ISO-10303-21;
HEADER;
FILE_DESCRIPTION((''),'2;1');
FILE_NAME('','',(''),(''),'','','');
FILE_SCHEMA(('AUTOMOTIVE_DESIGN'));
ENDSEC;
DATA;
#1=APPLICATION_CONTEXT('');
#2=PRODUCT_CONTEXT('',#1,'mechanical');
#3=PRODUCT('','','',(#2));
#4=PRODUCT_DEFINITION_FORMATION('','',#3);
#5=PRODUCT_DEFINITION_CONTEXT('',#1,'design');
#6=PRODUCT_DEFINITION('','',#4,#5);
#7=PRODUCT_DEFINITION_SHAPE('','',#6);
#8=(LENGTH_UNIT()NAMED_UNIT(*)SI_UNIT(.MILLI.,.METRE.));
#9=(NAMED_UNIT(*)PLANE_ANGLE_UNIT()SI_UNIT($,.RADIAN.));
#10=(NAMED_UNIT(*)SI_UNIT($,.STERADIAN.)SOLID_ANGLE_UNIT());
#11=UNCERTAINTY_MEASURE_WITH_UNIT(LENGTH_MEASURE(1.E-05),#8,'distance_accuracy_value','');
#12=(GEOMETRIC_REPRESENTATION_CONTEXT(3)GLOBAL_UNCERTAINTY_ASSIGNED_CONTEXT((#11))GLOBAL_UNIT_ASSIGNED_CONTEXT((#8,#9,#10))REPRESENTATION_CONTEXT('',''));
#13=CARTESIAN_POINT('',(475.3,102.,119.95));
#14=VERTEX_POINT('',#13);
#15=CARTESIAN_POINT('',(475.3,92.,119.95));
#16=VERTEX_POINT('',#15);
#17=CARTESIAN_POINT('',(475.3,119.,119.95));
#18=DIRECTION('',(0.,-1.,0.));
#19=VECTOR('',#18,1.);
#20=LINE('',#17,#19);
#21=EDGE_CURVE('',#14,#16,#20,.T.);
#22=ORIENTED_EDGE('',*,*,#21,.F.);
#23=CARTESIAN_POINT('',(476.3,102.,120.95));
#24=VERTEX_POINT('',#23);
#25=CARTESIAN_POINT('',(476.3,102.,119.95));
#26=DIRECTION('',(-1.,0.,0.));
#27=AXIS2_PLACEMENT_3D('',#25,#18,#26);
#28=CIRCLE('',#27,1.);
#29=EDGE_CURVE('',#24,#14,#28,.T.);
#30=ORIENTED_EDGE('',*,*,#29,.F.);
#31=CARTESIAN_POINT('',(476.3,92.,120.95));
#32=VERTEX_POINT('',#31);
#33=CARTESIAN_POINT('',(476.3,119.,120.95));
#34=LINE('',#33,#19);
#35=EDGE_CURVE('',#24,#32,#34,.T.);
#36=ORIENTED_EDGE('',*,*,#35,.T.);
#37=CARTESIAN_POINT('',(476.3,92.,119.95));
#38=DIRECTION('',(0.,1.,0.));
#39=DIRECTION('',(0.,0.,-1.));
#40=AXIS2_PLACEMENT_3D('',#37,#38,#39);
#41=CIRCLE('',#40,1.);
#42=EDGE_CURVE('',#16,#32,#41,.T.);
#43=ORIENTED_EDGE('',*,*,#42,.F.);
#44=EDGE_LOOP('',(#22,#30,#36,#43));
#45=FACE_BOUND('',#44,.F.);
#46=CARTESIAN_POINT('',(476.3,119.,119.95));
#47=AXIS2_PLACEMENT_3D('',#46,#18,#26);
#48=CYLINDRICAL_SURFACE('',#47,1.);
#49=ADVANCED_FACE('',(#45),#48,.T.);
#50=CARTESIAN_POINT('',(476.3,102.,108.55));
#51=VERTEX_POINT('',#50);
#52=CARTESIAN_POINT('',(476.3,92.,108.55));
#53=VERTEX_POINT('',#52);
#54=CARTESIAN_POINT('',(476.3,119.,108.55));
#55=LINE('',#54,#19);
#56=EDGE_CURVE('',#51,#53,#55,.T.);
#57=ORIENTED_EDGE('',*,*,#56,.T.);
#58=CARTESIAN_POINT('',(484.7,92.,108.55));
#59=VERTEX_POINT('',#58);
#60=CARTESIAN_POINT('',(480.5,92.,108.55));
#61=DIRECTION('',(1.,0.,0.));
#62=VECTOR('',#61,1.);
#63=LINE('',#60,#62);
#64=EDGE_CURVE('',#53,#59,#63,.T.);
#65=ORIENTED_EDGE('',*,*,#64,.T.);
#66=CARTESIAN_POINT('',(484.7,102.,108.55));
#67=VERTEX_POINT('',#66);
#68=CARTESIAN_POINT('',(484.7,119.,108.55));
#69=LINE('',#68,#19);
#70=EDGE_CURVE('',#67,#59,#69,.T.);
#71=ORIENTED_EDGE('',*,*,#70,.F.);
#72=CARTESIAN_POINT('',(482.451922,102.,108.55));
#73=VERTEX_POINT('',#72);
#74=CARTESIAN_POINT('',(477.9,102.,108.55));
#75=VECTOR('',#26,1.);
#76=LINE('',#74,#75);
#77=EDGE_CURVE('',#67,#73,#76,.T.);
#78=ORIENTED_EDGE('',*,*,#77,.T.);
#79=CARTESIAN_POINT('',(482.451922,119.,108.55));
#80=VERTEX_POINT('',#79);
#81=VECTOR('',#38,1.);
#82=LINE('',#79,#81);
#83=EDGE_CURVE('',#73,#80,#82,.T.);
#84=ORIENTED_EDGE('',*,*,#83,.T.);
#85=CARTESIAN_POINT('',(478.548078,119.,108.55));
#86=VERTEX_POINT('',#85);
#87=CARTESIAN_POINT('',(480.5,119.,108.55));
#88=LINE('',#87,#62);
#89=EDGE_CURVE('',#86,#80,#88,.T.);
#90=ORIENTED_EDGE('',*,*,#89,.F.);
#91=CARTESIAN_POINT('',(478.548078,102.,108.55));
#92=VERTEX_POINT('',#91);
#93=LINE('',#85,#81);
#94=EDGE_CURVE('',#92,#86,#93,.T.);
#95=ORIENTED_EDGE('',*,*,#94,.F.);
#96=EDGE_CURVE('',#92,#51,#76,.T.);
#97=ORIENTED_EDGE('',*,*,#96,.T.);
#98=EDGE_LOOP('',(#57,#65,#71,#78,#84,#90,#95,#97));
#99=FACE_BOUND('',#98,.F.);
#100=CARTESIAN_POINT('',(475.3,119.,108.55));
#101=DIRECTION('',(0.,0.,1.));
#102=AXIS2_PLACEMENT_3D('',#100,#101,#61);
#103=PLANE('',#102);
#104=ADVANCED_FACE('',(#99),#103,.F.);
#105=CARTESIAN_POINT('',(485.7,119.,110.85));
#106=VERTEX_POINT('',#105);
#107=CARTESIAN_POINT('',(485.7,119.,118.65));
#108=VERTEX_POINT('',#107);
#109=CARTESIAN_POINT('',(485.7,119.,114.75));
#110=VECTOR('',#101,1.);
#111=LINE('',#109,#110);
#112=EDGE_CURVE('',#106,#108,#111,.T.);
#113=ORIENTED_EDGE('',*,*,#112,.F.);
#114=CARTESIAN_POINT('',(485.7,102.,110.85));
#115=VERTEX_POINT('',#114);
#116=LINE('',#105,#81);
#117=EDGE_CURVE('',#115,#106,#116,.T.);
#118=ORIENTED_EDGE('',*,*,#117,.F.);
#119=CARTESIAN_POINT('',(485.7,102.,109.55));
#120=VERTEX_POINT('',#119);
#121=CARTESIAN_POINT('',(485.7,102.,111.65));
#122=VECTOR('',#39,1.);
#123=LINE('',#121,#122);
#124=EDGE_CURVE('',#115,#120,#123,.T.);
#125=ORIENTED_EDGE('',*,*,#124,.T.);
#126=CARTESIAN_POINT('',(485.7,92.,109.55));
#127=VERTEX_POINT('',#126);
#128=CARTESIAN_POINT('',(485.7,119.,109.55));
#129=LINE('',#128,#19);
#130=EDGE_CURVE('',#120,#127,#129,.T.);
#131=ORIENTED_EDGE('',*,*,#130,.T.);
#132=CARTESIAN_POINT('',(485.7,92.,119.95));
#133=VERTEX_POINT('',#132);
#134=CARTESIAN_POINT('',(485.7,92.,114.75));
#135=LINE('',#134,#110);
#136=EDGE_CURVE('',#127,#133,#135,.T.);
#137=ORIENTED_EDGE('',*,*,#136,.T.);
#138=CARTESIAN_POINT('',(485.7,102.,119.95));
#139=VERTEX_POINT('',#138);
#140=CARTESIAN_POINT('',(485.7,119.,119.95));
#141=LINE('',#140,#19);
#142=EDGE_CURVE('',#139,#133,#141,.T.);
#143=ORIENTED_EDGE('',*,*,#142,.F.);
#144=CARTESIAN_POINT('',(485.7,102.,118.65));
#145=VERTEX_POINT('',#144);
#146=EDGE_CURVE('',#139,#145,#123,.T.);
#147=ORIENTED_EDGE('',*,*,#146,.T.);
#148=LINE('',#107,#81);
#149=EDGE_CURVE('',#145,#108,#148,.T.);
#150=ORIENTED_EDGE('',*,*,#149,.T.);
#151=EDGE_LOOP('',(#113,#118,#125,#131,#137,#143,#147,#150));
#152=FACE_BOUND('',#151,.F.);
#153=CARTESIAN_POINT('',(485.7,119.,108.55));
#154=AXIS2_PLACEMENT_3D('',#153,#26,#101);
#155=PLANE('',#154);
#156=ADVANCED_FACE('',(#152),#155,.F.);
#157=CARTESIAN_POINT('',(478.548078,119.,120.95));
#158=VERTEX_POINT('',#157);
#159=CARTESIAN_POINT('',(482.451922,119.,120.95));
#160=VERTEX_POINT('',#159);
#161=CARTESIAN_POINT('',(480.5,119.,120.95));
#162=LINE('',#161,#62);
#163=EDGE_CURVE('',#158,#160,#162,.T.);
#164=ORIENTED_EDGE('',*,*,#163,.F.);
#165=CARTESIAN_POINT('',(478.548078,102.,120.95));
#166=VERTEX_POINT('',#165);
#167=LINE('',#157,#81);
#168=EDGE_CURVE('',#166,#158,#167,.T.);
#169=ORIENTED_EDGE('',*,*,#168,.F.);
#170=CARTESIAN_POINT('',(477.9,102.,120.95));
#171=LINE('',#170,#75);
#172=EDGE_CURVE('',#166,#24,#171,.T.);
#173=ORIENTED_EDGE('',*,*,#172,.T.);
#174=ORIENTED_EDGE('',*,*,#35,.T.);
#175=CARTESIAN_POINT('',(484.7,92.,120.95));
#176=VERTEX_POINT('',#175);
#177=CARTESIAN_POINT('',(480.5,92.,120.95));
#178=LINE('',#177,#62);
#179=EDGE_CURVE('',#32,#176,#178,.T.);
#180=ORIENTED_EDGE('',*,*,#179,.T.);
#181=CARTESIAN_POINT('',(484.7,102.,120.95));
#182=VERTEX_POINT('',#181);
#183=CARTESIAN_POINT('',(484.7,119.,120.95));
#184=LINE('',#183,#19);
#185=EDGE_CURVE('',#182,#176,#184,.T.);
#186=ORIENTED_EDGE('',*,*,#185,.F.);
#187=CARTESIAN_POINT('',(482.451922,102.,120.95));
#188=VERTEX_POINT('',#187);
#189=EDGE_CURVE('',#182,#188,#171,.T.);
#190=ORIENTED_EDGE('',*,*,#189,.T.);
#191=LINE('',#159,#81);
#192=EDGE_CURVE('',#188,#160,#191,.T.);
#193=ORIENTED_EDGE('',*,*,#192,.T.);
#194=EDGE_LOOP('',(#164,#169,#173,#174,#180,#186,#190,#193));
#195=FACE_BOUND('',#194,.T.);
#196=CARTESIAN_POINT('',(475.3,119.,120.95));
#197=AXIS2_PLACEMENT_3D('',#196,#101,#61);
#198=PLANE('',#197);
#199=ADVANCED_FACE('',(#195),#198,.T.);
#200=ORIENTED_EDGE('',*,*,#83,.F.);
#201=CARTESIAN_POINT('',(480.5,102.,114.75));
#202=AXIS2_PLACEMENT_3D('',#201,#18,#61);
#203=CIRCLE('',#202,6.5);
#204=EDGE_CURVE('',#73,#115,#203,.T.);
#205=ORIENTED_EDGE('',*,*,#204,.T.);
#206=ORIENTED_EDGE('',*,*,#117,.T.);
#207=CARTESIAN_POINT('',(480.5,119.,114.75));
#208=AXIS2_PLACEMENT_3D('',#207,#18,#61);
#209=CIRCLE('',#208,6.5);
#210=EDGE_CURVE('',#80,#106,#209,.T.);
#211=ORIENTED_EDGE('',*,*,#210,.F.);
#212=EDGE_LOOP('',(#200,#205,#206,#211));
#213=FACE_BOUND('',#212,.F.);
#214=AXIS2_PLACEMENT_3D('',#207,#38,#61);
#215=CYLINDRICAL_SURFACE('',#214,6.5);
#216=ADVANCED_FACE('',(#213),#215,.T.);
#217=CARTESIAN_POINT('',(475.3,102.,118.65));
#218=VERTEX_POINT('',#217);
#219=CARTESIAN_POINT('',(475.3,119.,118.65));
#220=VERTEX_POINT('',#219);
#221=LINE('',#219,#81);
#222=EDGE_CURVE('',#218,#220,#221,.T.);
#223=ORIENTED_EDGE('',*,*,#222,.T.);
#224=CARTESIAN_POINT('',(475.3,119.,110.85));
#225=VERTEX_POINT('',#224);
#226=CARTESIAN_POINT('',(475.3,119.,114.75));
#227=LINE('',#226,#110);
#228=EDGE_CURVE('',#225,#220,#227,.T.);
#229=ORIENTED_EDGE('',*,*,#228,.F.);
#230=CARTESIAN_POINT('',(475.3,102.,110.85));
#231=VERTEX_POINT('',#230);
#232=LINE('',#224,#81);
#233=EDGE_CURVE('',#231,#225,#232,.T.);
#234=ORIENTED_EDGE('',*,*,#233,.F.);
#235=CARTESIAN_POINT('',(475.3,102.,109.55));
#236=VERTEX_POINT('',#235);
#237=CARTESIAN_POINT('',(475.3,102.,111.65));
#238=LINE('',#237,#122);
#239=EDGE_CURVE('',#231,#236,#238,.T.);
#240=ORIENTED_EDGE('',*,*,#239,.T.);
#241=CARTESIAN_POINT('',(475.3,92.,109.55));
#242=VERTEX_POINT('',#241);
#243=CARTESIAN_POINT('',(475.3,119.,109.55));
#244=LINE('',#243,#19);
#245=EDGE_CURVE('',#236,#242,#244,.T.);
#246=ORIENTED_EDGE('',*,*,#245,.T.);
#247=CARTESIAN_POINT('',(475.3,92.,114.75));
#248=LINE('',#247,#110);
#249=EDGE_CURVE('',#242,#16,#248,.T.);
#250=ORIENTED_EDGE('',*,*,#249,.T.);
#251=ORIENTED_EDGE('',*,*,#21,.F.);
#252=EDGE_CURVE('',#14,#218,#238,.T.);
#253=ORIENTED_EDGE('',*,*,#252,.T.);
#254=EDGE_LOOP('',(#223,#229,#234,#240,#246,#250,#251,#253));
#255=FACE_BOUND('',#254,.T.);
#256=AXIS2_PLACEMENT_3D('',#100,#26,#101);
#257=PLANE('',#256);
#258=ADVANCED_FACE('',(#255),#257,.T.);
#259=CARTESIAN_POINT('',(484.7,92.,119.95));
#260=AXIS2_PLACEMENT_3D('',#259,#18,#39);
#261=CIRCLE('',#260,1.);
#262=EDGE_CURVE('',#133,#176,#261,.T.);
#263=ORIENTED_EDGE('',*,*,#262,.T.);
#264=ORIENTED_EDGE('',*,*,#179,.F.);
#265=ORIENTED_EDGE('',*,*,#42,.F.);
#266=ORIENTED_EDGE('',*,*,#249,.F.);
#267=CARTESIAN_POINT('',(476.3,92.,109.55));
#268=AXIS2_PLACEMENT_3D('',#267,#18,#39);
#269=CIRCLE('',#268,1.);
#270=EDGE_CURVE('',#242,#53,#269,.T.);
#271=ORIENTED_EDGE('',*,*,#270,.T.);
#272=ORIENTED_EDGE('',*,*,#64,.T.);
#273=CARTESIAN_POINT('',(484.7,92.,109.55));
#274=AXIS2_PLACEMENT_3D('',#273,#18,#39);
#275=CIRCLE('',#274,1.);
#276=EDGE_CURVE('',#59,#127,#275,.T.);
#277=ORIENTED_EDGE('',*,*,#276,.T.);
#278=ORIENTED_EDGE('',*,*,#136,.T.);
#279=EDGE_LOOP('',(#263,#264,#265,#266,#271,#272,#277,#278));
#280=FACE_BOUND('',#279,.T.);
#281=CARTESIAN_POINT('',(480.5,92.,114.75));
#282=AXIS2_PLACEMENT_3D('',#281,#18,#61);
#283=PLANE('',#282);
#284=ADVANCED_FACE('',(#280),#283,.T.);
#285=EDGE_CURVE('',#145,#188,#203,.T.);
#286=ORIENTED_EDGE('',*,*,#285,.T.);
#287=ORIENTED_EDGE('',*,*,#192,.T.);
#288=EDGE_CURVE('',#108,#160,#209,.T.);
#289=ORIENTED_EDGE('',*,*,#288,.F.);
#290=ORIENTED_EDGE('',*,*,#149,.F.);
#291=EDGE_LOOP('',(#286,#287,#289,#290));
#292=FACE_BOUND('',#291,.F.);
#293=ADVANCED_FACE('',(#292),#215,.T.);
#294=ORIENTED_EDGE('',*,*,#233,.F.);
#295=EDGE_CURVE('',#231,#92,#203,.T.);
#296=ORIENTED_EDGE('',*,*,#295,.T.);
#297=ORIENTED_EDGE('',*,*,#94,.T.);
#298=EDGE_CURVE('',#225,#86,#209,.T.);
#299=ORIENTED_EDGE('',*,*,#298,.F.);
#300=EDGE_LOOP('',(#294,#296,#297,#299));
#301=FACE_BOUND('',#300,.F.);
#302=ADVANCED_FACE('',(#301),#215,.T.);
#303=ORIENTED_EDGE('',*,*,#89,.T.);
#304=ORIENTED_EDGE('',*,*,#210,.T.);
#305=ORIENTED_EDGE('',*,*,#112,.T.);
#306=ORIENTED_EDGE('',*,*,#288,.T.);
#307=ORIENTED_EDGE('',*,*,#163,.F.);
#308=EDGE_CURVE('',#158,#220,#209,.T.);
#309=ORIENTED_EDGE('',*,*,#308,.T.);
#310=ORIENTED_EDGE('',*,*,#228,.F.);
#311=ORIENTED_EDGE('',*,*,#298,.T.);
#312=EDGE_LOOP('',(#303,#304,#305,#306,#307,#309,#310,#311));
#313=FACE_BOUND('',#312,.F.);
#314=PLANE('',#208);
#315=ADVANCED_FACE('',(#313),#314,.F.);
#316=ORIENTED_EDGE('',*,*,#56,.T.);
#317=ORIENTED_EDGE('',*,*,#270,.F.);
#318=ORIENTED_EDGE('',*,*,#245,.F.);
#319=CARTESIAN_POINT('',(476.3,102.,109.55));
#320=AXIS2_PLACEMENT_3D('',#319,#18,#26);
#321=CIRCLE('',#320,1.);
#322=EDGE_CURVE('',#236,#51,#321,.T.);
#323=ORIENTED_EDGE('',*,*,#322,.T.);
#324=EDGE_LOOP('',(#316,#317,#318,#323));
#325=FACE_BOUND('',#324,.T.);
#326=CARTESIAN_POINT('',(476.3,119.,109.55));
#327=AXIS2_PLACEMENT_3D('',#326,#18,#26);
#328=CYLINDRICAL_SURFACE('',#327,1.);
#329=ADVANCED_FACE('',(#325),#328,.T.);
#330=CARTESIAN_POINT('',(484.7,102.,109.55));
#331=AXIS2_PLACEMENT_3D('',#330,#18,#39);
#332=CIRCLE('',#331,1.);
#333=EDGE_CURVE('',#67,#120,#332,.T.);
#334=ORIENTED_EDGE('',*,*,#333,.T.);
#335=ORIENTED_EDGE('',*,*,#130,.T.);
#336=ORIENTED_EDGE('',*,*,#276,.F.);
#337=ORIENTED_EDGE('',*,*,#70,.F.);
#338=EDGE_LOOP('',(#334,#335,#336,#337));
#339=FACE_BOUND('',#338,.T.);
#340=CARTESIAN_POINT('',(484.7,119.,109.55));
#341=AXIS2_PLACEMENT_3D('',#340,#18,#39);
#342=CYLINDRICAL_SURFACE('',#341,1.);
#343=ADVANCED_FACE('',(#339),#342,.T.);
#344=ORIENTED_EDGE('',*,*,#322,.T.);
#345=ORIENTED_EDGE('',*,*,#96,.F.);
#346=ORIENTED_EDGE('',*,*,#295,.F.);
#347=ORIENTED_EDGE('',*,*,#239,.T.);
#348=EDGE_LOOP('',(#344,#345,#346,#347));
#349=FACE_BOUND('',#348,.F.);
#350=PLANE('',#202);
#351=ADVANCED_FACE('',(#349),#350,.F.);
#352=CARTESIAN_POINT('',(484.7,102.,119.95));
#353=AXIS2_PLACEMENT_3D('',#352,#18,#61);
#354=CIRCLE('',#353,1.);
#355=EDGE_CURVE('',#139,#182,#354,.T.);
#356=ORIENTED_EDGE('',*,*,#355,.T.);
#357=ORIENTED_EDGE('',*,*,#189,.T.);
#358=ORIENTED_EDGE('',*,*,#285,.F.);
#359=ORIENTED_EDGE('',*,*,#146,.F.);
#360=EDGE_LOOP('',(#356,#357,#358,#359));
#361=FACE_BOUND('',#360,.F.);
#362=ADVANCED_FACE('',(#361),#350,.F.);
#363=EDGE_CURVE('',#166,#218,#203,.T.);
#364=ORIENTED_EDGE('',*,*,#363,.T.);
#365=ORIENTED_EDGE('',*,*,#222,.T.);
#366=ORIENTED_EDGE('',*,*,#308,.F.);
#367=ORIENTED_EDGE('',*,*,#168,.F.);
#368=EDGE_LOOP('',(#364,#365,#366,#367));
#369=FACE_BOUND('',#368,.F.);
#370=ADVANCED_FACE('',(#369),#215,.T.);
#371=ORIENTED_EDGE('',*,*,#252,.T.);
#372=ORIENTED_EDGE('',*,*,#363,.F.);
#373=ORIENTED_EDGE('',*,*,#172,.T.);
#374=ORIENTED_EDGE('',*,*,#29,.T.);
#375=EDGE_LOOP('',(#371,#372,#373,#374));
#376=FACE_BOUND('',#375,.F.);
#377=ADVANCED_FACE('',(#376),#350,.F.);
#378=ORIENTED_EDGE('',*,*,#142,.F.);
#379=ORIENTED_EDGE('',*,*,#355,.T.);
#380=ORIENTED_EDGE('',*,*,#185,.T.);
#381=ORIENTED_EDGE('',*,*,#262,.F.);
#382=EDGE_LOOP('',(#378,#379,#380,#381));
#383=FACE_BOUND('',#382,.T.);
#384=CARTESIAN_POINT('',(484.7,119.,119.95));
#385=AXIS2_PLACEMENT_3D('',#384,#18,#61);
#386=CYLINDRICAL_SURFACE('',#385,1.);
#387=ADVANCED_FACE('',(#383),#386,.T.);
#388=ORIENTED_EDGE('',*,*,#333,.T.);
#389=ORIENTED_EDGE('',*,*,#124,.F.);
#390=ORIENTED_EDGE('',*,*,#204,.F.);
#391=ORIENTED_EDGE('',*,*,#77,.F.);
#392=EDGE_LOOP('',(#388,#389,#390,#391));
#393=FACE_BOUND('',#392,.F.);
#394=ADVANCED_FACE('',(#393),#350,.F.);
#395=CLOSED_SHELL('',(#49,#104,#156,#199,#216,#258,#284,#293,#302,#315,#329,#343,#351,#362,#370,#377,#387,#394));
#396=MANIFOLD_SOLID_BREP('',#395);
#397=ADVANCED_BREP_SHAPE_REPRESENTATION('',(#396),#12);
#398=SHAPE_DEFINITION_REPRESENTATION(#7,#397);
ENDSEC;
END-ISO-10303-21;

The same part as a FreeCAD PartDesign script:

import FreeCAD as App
import Part
import Sketcher

V = App.Vector


def edges_at(feature, points):
    """Names of the edges that pass closest to the given points."""
    edges = feature.Shape.Edges
    near = lambda p: min(range(len(edges)), key=lambda i: edges[i].distToShape(Part.Vertex(*p))[0])
    return sorted({f"Edge{near(p) + 1}" for p in points})


def add_polygon(sketch, points):
    """Adds a closed chain of lines whose ends are joined by coincident constraints."""
    first, n = sketch.GeometryCount, len(points)
    for a, b in zip(points, points[1:] + points[:1]):
        sketch.addGeometry(Part.LineSegment(App.Vector(*a, 0), App.Vector(*b, 0)), False)
    for i in range(n):
        sketch.addConstraint(Sketcher.Constraint("Coincident", first + i, 2, first + (i + 1) % n, 1))

doc = App.newDocument("Part")
body = doc.addObject("PartDesign::Body", "Body")

# Sketch on XY plane
sketch1 = doc.addObject("Sketcher::SketchObject", "Sketch")
body.addObject(sketch1)
sketch1.AttachmentSupport = (doc.XY_Plane, [""])
sketch1.MapMode = "FlatFace"
add_polygon(sketch1, [(-5.2, 6.2), (-5.2, -6.2), (5.2, -6.2), (5.2, 6.2)])  # lines 0-3
sketch1.addConstraint([
    Sketcher.Constraint("Vertical", 0),
    Sketcher.Constraint("Horizontal", 1),
    Sketcher.Constraint("Vertical", 2),
    Sketcher.Constraint("Horizontal", 3),
    Sketcher.Constraint("Symmetric", 0, 2, 2, 2, -1, 1),
    Sketcher.Constraint("DistanceX", 1, 1, 1, 2, 10.4),
    Sketcher.Constraint("DistanceY", 0, 2, 0, 1, 12.4),
])
pad1 = doc.addObject("PartDesign::Pad", "Pad")
body.addObject(pad1)
pad1.Profile = sketch1
pad1.Length = 27
doc.recompute()

fillet = doc.addObject("PartDesign::Fillet", "Fillet")
body.addObject(fillet)
fillet.Base = (pad1, edges_at(pad1, [
    (-5.2, -6.2, 13.5),
    (-5.2, 6.2, 13.5),
    (5.2, -6.2, 13.5),
    (5.2, 6.2, 13.5),
]))
fillet.Radius = 1
body2 = doc.addObject("PartDesign::Body", "Body001")

# Sketch on XY plane
sketch2 = doc.addObject("Sketcher::SketchObject", "Sketch001")
body2.addObject(sketch2)
sketch2.AttachmentSupport = (doc.getObject("XY_Plane001"), [""])
sketch2.MapMode = "FlatFace"
sketch2.addGeometry(Part.Circle(V(0, 0, 0), V(0, 0, 1), 8), False)
sketch2.addConstraint([
    Sketcher.Constraint("Coincident", 0, 3, -1, 1),
    Sketcher.Constraint("Diameter", 0, 16.0),
])
pad2 = doc.addObject("PartDesign::Pad", "Pad001")
body2.addObject(pad2)
pad2.Profile = sketch2
pad2.Length = 27
doc.recompute()

boolean = doc.addObject("PartDesign::Boolean", "Boolean")
body2.addObject(boolean)
boolean.Type = "Cut"
boolean.addObjects([body])
body3 = doc.addObject("PartDesign::Body", "Body002")

# Sketch on XY plane
sketch3 = doc.addObject("Sketcher::SketchObject", "Sketch002")
body3.addObject(sketch3)
sketch3.AttachmentSupport = (doc.getObject("XY_Plane002"), [""])
sketch3.MapMode = "FlatFace"
sketch3.addGeometry(Part.Circle(V(0, 0, 0), V(0, 0, 1), 6.5), False)
sketch3.addConstraint([
    Sketcher.Constraint("Coincident", 0, 3, -1, 1),
    Sketcher.Constraint("Diameter", 0, 13.0),
])
pad3 = doc.addObject("PartDesign::Pad", "Pad002")
body3.addObject(pad3)
pad3.Profile = sketch3
pad3.Length = 17
body4 = doc.addObject("PartDesign::Body", "Body003")

# Sketch on XY plane
sketch4 = doc.addObject("Sketcher::SketchObject", "Sketch003")
body4.addObject(sketch4)
sketch4.AttachmentSupport = (doc.getObject("XY_Plane003"), [""])
sketch4.MapMode = "FlatFace"
sketch4.addGeometry(Part.Circle(V(0, 0, 0), V(0, 0, 1), 8), False)
sketch4.addConstraint([
    Sketcher.Constraint("Coincident", 0, 3, -1, 1),
    Sketcher.Constraint("Diameter", 0, 16.0),
])
pad4 = doc.addObject("PartDesign::Pad", "Pad003")
body4.addObject(pad4)
pad4.Profile = sketch4
pad4.Length = 17
doc.recompute()

boolean2 = doc.addObject("PartDesign::Boolean", "Boolean001")
body4.addObject(boolean2)
boolean2.Type = "Cut"
boolean2.addObjects([body3])
doc.recompute()

boolean3 = doc.addObject("PartDesign::Boolean", "Boolean002")
body4.addObject(boolean3)
boolean3.Type = "Fuse"
boolean3.addObjects([body2])
body5 = doc.addObject("PartDesign::Body", "Body004")

# Sketch on XY plane
sketch5 = doc.addObject("Sketcher::SketchObject", "Sketch004")
body5.addObject(sketch5)
sketch5.AttachmentSupport = (doc.getObject("XY_Plane004"), [""])
sketch5.MapMode = "FlatFace"
sketch5.addGeometry(Part.Circle(V(0, 0, 0), V(0, 0, 1), 8), False)
sketch5.addConstraint([
    Sketcher.Constraint("Coincident", 0, 3, -1, 1),
    Sketcher.Constraint("Diameter", 0, 16.0),
])
pad5 = doc.addObject("PartDesign::Pad", "Pad004")
body5.addObject(pad5)
pad5.Profile = sketch5
pad5.Length = 27
doc.recompute()

boolean4 = doc.addObject("PartDesign::Boolean", "Boolean003")
body5.addObject(boolean4)
boolean4.Type = "Cut"
boolean4.addObjects([body4])
body6 = doc.addObject("PartDesign::Body", "Body005")
doc.recompute()

body5.Placement = App.Placement(V(480.5, 119, 114.75), App.Rotation(V(1, 0, 0), 90))
boolean5 = doc.addObject("PartDesign::Boolean", "Boolean004")
body6.addObject(boolean5)
boolean5.Type = "Fuse"
boolean5.addObjects([body5])

doc.recompute()
